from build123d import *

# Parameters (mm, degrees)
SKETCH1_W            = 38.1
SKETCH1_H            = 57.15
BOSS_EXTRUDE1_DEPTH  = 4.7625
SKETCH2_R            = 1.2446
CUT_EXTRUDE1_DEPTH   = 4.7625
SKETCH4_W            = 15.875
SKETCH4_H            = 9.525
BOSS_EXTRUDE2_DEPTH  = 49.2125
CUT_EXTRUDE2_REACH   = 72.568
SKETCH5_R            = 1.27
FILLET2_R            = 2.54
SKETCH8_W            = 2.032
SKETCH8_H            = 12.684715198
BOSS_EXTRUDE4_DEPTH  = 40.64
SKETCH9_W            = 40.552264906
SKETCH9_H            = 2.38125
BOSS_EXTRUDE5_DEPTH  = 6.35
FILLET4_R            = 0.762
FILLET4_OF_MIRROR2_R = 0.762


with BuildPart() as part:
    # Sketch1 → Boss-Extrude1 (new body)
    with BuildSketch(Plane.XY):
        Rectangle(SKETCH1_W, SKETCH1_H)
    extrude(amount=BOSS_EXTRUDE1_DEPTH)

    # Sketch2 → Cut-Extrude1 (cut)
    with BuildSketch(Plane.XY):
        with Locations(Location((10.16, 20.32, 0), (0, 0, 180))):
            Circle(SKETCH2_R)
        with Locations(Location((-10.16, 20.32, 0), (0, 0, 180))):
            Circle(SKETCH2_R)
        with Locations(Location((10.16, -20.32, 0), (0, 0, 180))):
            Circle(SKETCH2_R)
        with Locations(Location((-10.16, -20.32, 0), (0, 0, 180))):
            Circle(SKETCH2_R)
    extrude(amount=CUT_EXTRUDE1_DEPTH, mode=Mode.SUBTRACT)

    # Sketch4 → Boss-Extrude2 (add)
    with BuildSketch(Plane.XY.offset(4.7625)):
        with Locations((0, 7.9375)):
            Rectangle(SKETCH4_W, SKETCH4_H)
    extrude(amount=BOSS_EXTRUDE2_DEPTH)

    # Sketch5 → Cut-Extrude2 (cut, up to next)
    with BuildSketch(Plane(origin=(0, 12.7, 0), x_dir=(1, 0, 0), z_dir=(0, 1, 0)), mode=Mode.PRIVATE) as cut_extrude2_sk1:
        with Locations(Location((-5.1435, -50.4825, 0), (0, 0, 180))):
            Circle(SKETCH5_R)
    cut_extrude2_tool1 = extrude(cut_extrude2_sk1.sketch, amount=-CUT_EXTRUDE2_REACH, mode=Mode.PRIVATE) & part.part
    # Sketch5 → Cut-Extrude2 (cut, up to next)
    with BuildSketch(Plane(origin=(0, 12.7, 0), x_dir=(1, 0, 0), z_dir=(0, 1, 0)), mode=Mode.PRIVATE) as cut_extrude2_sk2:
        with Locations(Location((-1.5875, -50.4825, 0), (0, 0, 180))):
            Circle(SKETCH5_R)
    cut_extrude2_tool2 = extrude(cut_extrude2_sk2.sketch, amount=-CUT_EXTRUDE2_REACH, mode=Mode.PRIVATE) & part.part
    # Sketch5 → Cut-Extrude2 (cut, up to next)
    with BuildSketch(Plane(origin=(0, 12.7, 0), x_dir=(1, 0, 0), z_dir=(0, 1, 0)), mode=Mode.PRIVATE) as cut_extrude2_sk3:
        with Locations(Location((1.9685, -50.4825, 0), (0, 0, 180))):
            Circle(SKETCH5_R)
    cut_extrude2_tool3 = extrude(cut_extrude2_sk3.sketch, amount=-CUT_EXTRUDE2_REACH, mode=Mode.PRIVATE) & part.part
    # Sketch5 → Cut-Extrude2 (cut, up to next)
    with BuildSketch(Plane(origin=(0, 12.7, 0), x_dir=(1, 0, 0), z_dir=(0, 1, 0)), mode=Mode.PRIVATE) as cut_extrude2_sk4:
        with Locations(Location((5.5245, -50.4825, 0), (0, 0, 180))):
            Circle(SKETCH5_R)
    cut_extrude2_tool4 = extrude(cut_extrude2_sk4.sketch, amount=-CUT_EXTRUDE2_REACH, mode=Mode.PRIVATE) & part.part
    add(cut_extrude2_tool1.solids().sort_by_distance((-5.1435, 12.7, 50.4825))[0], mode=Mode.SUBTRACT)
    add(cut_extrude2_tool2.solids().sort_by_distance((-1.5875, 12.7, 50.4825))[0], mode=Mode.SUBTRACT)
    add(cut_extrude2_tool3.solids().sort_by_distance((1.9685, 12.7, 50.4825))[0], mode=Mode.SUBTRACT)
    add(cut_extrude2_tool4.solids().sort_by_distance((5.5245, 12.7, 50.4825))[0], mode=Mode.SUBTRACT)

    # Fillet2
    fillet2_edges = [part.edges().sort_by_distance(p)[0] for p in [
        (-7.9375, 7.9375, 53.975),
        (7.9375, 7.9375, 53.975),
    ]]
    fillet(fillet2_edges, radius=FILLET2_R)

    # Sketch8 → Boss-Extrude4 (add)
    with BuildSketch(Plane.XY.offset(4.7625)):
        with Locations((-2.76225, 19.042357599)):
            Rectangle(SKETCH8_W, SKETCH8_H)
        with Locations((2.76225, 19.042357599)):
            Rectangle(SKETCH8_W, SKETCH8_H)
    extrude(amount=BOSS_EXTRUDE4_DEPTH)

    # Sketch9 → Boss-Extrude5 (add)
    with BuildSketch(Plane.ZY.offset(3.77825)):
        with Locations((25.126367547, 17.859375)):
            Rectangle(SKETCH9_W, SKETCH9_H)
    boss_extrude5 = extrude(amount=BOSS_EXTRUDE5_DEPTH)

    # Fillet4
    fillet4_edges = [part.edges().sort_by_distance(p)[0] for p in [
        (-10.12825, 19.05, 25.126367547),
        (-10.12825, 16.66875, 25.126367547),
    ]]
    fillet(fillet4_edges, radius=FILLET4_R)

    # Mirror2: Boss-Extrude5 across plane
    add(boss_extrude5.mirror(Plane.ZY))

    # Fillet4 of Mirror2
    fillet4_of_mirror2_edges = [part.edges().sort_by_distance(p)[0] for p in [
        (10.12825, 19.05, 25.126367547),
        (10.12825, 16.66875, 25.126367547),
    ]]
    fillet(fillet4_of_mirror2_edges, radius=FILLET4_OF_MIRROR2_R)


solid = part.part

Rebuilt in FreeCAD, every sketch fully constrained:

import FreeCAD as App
import Part
import Sketcher
Q = App.Units.Quantity


def edges_at(feature, points):
    """Names of the edges that pass closest to the given points."""
    edges = feature.Shape.Edges
    near = lambda p: min(range(len(edges)), key=lambda i: edges[i].distToShape(Part.Vertex(*p))[0])
    return sorted({f"Edge{near(p) + 1}" for p in points})


def add_polygon(sketch, points):
    """Adds a closed chain of lines whose ends are joined by coincident constraints."""
    first, n = sketch.GeometryCount, len(points)
    for a, b in zip(points, points[1:] + points[:1]):
        sketch.addGeometry(Part.LineSegment(App.Vector(*a, 0), App.Vector(*b, 0)), False)
    for i in range(n):
        sketch.addConstraint(Sketcher.Constraint("Coincident", first + i, 2, first + (i + 1) % n, 1))

doc = App.newDocument("Part")
body = doc.addObject("PartDesign::Body", "Body")

# Sketch on XY plane
sketch1 = body.newObject("Sketcher::SketchObject", "Sketch")
sketch1.AttachmentSupport = (doc.getObject("XY_Plane"), [""])
sketch1.MapMode = "FlatFace"
add_polygon(sketch1, [(-19, 29), (-19, -29), (19, -29), (19, 29)])  # lines 0-3
sketch1.addConstraint(Sketcher.Constraint("Vertical", 0))
sketch1.addConstraint(Sketcher.Constraint("Horizontal", 1))
sketch1.addConstraint(Sketcher.Constraint("Vertical", 2))
sketch1.addConstraint(Sketcher.Constraint("Horizontal", 3))
sketch1.addConstraint(Sketcher.Constraint("Symmetric", 0, 2, 2, 2, -1, 1))
sketch1.addConstraint(Sketcher.Constraint("DistanceX", 1, 1, 1, 2, Q("1.5 in")))
sketch1.addConstraint(Sketcher.Constraint("DistanceY", 0, 2, 0, 1, Q("2.25 in")))
pad1 = body.newObject("PartDesign::Pad", "Pad")
pad1.Profile = sketch1
pad1.Length = Q("0.1875 in")

# Sketch on XY plane
sketch2 = body.newObject("Sketcher::SketchObject", "Sketch001")
sketch2.AttachmentSupport = (doc.getObject("XY_Plane"), [""])
sketch2.MapMode = "FlatFace"
sketch2.addGeometry(Part.Circle(App.Vector(10.2, 20.3, 0), App.Vector(0, 0, 1), 1.2), False)
sketch2.addGeometry(Part.Circle(App.Vector(-10.2, 20.3, 0), App.Vector(0, 0, 1), 1.2), False)
sketch2.addGeometry(Part.Circle(App.Vector(10.2, -20.3, 0), App.Vector(0, 0, 1), 1.2), False)
sketch2.addGeometry(Part.Circle(App.Vector(-10.2, -20.3, 0), App.Vector(0, 0, 1), 1.2), False)
sketch2.addConstraint(Sketcher.Constraint("Equal", 0, 1))
sketch2.addConstraint(Sketcher.Constraint("Equal", 1, 2))
sketch2.addConstraint(Sketcher.Constraint("Equal", 2, 3))
sketch2.addConstraint(Sketcher.Constraint("Symmetric", 1, 3, 2, 3, -1, 1))
sketch2.addConstraint(Sketcher.Constraint("Symmetric", 0, 3, 3, 3, -1, 1))
sketch2.addConstraint(Sketcher.Constraint("Symmetric", 0, 3, 1, 3, -2))
sketch2.addConstraint(Sketcher.Constraint("Diameter", 0, Q("0.098 in")))
sketch2.addConstraint(Sketcher.Constraint("DistanceX", -1, 1, 0, 3, Q("0.4 in")))
sketch2.addConstraint(Sketcher.Constraint("DistanceY", -1, 1, 0, 3, Q("0.8 in")))
pocket1 = body.newObject("PartDesign::Pocket", "Pocket")
pocket1.Profile = sketch2
pocket1.Length = Q("0.1875 in")
pocket1.Reversed = True

# Sketch on XY plane
sketch3 = body.newObject("Sketcher::SketchObject", "Sketch002")
sketch3.AttachmentSupport = (doc.getObject("XY_Plane"), [""])
sketch3.MapMode = "FlatFace"
sketch3.AttachmentOffset = App.Placement(App.Vector(0, 0, 0.1875 * 25.4), App.Rotation())
add_polygon(sketch3, [(-8, 13), (-8, 3), (8, 3), (8, 13)])  # lines 0-3
sketch3.addConstraint(Sketcher.Constraint("Vertical", 0))
sketch3.addConstraint(Sketcher.Constraint("Horizontal", 1))
sketch3.addConstraint(Sketcher.Constraint("Vertical", 2))
sketch3.addConstraint(Sketcher.Constraint("Horizontal", 3))
sketch3.addConstraint(Sketcher.Constraint("DistanceY", -1, 1, 2, 2, Q("0.5 in")))
sketch3.addConstraint(Sketcher.Constraint("DistanceX", 1, 1, 1, 2, Q("0.625 in")))
sketch3.addConstraint(Sketcher.Constraint("DistanceY", 0, 2, 0, 1, Q("0.375 in")))
sketch3.addConstraint(Sketcher.Constraint("DistanceX", 0, 2, -1, 1, Q("0.3125 in")))
pad2 = body.newObject("PartDesign::Pad", "Pad001")
pad2.Profile = sketch3
pad2.Length = Q("1.9375 in")

# Sketch on XZ plane
sketch4 = body.newObject("Sketcher::SketchObject", "Sketch003")
sketch4.AttachmentSupport = (doc.getObject("XZ_Plane"), [""])
sketch4.MapMode = "FlatFace"
sketch4.AttachmentOffset = App.Placement(App.Vector(0, 0, -0.5 * 25.4), App.Rotation())
sketch4.addGeometry(Part.Circle(App.Vector(-5.1, 50.5, 0), App.Vector(0, 0, 1), 1.3), False)
sketch4.addConstraint(Sketcher.Constraint("Diameter", 0, Q("0.1 in")))
sketch4.addConstraint(Sketcher.Constraint("DistanceX", 0, 3, -1, 1, Q("0.2025 in")))
sketch4.addConstraint(Sketcher.Constraint("DistanceY", -1, 1, 0, 3, Q("1.9875 in")))
pocket2 = body.newObject("PartDesign::Pocket", "Pocket001")
pocket2.Profile = sketch4
pocket2.Type = "UpToFirst"
pocket2.Reversed = True

# Sketch on XZ plane
sketch5 = body.newObject("Sketcher::SketchObject", "Sketch004")
sketch5.AttachmentSupport = (doc.getObject("XZ_Plane"), [""])
sketch5.MapMode = "FlatFace"
sketch5.AttachmentOffset = App.Placement(App.Vector(0, 0, -0.5 * 25.4), App.Rotation())
sketch5.addGeometry(Part.Circle(App.Vector(-1.6, 50.5, 0), App.Vector(0, 0, 1), 1.3), False)
sketch5.addConstraint(Sketcher.Constraint("Diameter", 0, Q("0.1 in")))
sketch5.addConstraint(Sketcher.Constraint("DistanceX", 0, 3, -1, 1, Q("0.0625 in")))
sketch5.addConstraint(Sketcher.Constraint("DistanceY", -1, 1, 0, 3, Q("1.9875 in")))
pocket3 = body.newObject("PartDesign::Pocket", "Pocket002")
pocket3.Profile = sketch5
pocket3.Type = "UpToFirst"
pocket3.Reversed = True

# Sketch on XZ plane
sketch6 = body.newObject("Sketcher::SketchObject", "Sketch005")
sketch6.AttachmentSupport = (doc.getObject("XZ_Plane"), [""])
sketch6.MapMode = "FlatFace"
sketch6.AttachmentOffset = App.Placement(App.Vector(0, 0, -0.5 * 25.4), App.Rotation())
sketch6.addGeometry(Part.Circle(App.Vector(2, 50.5, 0), App.Vector(0, 0, 1), 1.3), False)
sketch6.addConstraint(Sketcher.Constraint("Diameter", 0, Q("0.1 in")))
sketch6.addConstraint(Sketcher.Constraint("DistanceX", -1, 1, 0, 3, Q("0.0775 in")))
sketch6.addConstraint(Sketcher.Constraint("DistanceY", -1, 1, 0, 3, Q("1.9875 in")))
pocket4 = body.newObject("PartDesign::Pocket", "Pocket003")
pocket4.Profile = sketch6
pocket4.Type = "UpToFirst"
pocket4.Reversed = True

# Sketch on XZ plane
sketch7 = body.newObject("Sketcher::SketchObject", "Sketch006")
sketch7.AttachmentSupport = (doc.getObject("XZ_Plane"), [""])
sketch7.MapMode = "FlatFace"
sketch7.AttachmentOffset = App.Placement(App.Vector(0, 0, -0.5 * 25.4), App.Rotation())
sketch7.addGeometry(Part.Circle(App.Vector(5.5, 50.5, 0), App.Vector(0, 0, 1), 1.3), False)
sketch7.addConstraint(Sketcher.Constraint("Diameter", 0, Q("0.1 in")))
sketch7.addConstraint(Sketcher.Constraint("DistanceX", -1, 1, 0, 3, Q("0.2175 in")))
sketch7.addConstraint(Sketcher.Constraint("DistanceY", -1, 1, 0, 3, Q("1.9875 in")))
pocket5 = body.newObject("PartDesign::Pocket", "Pocket004")
pocket5.Profile = sketch7
pocket5.Type = "UpToFirst"
pocket5.Reversed = True
doc.recompute()

fillet = body.newObject("PartDesign::Fillet", "Fillet")
fillet.Base = (pocket5, edges_at(pocket5, [(-7.938, 7.938, 53.975), (7.938, 7.938, 53.975)]))
fillet.Radius = Q("0.1 in")

# Sketch on XY plane
sketch8 = body.newObject("Sketcher::SketchObject", "Sketch007")
sketch8.AttachmentSupport = (doc.getObject("XY_Plane"), [""])
sketch8.MapMode = "FlatFace"
sketch8.AttachmentOffset = App.Placement(App.Vector(0, 0, 0.1875 * 25.4), App.Rotation())
add_polygon(sketch8, [(-3.8, 25.4), (-3.8, 12.7), (-1.7, 12.7), (-1.7, 25.4)])  # lines 0-3
add_polygon(sketch8, [(1.7, 25.4), (1.7, 12.7), (3.8, 12.7), (3.8, 25.4)])  # lines 4-7
sketch8.addConstraint(Sketcher.Constraint("Vertical", 0))
sketch8.addConstraint(Sketcher.Constraint("Horizontal", 1))
sketch8.addConstraint(Sketcher.Constraint("Vertical", 2))
sketch8.addConstraint(Sketcher.Constraint("Horizontal", 3))
sketch8.addConstraint(Sketcher.Constraint("Vertical", 4))
sketch8.addConstraint(Sketcher.Constraint("Horizontal", 5))
sketch8.addConstraint(Sketcher.Constraint("Vertical", 6))
sketch8.addConstraint(Sketcher.Constraint("Horizontal", 7))
sketch8.addConstraint(Sketcher.Constraint("Symmetric", 1, 2, 4, 2, -2))
sketch8.addConstraint(Sketcher.Constraint("Symmetric", 3, 2, 6, 2, -2))
sketch8.addConstraint(Sketcher.Constraint("DistanceX", 1, 1, 1, 2, Q("0.08 in")))
sketch8.addConstraint(Sketcher.Constraint("DistanceY", -1, 1, 0, 2, Q("0.5 in")))
sketch8.addConstraint(Sketcher.Constraint("DistanceX", 1, 2, 4, 2, Q("0.1375 in")))
sketch8.addConstraint(Sketcher.Constraint("DistanceY", 0, 2, 0, 1, Q("12.684715 mm")))
pad3 = body.newObject("PartDesign::Pad", "Pad002")
pad3.Profile = sketch8
pad3.Length = Q("1.6 in")

# Sketch on YZ plane
sketch9 = body.newObject("Sketcher::SketchObject", "Sketch008")
sketch9.AttachmentSupport = (doc.getObject("YZ_Plane"), [""])
sketch9.MapMode = "FlatFace"
sketch9.AttachmentOffset = App.Placement(App.Vector(0, 0, -3.77825), App.Rotation())
add_polygon(sketch9, [(19.1, 4.9), (16.7, 4.9), (16.7, 45.4), (19.1, 45.4)])  # lines 0-3
sketch9.addConstraint(Sketcher.Constraint("Horizontal", 0))
sketch9.addConstraint(Sketcher.Constraint("Vertical", 1))
sketch9.addConstraint(Sketcher.Constraint("Horizontal", 2))
sketch9.addConstraint(Sketcher.Constraint("Vertical", 3))
sketch9.addConstraint(Sketcher.Constraint("DistanceX", 0, 2, 0, 1, Q("0.09375 in")))
sketch9.addConstraint(Sketcher.Constraint("DistanceX", -1, 1, 2, 2, Q("0.75 in")))
sketch9.addConstraint(Sketcher.Constraint("DistanceY", -1, 1, 1, 2, Q("1.7875 in")))
sketch9.addConstraint(Sketcher.Constraint("DistanceY", 1, 1, 1, 2, Q("40.552265 mm")))
pad4 = body.newObject("PartDesign::Pad", "Pad003")
pad4.Profile = sketch9
pad4.Length = Q("0.25 in")
pad4.Reversed = True
doc.recompute()

fillet2 = body.newObject("PartDesign::Fillet", "Fillet001")
fillet2.Base = (pad4, edges_at(pad4, [(-10.128, 19.05, 25.126), (-10.128, 16.669, 25.126)]))
fillet2.Radius = Q("0.03 in")
doc.recompute()

mirrored = body.newObject("PartDesign::Mirrored", "Mirrored")
mirrored.Originals = [pad4]
mirrored.MirrorPlane = (doc.getObject("YZ_Plane"), [""])
body.Tip = mirrored
doc.recompute()

fillet3 = body.newObject("PartDesign::Fillet", "Fillet002")
fillet3.Base = (mirrored, edges_at(mirrored, [(10.128, 19.05, 25.126), (10.128, 16.669, 25.126)]))
fillet3.Radius = Q("0.03 in")

doc.recompute()
